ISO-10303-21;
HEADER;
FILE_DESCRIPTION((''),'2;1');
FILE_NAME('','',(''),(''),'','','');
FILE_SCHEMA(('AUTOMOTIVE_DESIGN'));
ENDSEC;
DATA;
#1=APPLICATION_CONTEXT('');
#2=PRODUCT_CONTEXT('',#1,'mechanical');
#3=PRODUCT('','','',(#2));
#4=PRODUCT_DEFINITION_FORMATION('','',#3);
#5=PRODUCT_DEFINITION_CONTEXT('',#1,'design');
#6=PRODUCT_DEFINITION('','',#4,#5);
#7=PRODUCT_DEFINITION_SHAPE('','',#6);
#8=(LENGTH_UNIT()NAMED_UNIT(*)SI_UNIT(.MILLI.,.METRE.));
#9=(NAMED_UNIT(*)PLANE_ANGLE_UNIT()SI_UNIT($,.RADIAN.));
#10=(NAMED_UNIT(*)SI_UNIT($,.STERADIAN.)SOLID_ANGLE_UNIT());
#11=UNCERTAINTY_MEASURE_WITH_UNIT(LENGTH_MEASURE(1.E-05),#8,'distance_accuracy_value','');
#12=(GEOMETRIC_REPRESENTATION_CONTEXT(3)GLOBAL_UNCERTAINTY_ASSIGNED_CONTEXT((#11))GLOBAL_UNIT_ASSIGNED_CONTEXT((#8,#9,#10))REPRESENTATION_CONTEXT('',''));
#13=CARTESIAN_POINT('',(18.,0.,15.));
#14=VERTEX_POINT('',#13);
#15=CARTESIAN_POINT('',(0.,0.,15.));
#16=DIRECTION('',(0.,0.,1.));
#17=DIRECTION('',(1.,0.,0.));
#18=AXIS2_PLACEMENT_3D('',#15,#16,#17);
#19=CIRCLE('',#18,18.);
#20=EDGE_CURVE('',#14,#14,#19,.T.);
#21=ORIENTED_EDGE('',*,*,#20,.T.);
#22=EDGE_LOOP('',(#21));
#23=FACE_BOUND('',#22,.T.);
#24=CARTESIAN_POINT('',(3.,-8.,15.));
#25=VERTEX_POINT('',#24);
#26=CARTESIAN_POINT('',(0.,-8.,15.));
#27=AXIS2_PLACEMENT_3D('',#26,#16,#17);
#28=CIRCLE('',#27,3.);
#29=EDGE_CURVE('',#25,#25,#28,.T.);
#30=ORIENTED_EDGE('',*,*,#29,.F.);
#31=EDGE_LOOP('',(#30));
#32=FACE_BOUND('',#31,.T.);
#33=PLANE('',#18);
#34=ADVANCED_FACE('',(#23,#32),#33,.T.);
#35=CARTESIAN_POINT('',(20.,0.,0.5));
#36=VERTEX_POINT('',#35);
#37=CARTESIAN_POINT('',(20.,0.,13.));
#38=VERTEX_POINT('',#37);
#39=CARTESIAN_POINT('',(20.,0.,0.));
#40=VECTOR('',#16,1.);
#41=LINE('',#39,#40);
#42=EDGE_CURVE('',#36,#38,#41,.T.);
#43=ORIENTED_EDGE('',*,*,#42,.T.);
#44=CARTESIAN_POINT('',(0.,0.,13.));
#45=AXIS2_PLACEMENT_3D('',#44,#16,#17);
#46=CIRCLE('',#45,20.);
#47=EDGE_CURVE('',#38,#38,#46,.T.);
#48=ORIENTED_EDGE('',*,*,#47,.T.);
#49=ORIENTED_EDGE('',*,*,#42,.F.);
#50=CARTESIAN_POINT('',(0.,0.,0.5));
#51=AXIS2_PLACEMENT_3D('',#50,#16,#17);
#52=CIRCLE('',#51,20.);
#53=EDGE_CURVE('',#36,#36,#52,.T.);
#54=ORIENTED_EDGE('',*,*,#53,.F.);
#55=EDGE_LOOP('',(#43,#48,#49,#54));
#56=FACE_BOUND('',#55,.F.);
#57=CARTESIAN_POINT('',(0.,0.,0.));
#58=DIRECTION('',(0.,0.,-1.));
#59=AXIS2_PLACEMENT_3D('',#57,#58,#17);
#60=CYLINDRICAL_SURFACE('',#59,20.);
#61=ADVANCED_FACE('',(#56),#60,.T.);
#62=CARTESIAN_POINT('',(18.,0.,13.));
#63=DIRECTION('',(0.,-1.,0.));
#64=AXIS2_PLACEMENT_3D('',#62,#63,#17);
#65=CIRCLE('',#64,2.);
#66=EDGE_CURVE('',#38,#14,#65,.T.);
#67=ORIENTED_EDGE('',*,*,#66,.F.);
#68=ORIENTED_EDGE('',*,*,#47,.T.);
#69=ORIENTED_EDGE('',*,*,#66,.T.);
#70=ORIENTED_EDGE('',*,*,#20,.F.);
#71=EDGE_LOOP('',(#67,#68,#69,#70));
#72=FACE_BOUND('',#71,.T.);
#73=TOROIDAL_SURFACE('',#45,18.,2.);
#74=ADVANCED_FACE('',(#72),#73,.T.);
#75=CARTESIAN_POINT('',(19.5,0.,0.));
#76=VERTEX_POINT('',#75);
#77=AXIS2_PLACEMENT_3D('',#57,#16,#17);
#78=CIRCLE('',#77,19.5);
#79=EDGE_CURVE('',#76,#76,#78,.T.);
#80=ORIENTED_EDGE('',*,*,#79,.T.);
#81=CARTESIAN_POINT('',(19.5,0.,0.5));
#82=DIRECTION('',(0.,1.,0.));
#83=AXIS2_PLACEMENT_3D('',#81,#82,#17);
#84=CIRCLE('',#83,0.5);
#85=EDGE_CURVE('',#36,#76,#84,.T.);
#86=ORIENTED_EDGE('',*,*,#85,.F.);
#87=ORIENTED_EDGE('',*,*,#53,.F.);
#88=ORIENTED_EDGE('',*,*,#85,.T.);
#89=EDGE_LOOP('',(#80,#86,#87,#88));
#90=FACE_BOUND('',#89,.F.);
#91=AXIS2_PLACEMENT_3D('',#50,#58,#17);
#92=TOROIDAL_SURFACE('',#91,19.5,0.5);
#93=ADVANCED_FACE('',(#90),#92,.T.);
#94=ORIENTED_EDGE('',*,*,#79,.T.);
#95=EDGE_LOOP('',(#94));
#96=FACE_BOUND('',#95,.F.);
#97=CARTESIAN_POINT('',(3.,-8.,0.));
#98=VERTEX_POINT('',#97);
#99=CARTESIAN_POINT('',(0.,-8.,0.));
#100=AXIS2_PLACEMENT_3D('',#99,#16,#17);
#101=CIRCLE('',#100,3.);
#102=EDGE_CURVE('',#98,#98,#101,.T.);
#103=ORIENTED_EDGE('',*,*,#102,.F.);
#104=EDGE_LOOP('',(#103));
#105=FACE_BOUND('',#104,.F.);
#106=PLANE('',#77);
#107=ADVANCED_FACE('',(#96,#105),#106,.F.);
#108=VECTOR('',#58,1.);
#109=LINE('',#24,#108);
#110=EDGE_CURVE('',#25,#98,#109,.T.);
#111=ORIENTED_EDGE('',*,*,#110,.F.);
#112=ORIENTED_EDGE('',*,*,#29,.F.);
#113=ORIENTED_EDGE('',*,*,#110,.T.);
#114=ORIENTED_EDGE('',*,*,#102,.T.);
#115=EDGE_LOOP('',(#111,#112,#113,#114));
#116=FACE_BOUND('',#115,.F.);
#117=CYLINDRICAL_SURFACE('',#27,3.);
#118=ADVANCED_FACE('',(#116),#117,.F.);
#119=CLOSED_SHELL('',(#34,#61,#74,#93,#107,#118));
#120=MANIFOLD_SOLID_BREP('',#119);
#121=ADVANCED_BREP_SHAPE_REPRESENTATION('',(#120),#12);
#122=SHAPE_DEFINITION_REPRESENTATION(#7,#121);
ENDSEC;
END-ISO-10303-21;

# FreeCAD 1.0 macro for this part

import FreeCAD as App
import Part
import Sketcher

V = App.Vector
Q = App.Units.Quantity


def edges_at(feature, points):
    """Names of the edges that pass closest to the given points."""
    edges = feature.Shape.Edges
    near = lambda p: min(range(len(edges)), key=lambda i: edges[i].distToShape(Part.Vertex(*p))[0])
    return sorted({f"Edge{near(p) + 1}" for p in points})

doc = App.newDocument("Part")
body = doc.addObject("PartDesign::Body", "Body")

sketch1 = body.newObject("Sketcher::SketchObject", "Sketch")
sketch1.AttachmentSupport = (doc.getObject("XY_Plane"), [""])
sketch1.MapMode = "FlatFace"
sketch1.addGeometry(Part.Circle(V(0, 0, 0), V(0, 0, 1), 20), False)
sketch1.addConstraint([
    Sketcher.Constraint("Coincident", 0, 3, -1, 1),
    Sketcher.Constraint("Diameter", 0, Q("40 mm")),
])
pad1 = body.newObject("PartDesign::Pad", "Pad")
pad1.Profile = sketch1
pad1.Length = 15

sketch2 = body.newObject("Sketcher::SketchObject", "Sketch001")
sketch2.AttachmentSupport = (doc.getObject("XY_Plane"), [""])
sketch2.MapMode = "FlatFace"
sketch2.AttachmentOffset = App.Placement(V(0, 0, 15), App.Rotation())
sketch2.addGeometry(Part.Circle(V(0, -8, 0), V(0, 0, 1), 3), False)
sketch2.addConstraint([
    Sketcher.Constraint("PointOnObject", 0, 3, -2),
    Sketcher.Constraint("Diameter", 0, Q("6 mm")),
    Sketcher.Constraint("DistanceY", 0, 3, -1, 1, Q("8 mm")),
])
pocket1 = body.newObject("PartDesign::Pocket", "Pocket")
pocket1.Profile = sketch2
pocket1.Type = "ThroughAll"
doc.recompute()

fillet = body.newObject("PartDesign::Fillet", "Fillet")
fillet.Base = (pocket1, edges_at(pocket1, [(-20, 0, 15)]))
fillet.Radius = 2
doc.recompute()

fillet2 = body.newObject("PartDesign::Fillet", "Fillet001")
fillet2.Base = (fillet, edges_at(fillet, [(-20, 0, 0)]))
fillet2.Radius = 0.5

doc.recompute()
